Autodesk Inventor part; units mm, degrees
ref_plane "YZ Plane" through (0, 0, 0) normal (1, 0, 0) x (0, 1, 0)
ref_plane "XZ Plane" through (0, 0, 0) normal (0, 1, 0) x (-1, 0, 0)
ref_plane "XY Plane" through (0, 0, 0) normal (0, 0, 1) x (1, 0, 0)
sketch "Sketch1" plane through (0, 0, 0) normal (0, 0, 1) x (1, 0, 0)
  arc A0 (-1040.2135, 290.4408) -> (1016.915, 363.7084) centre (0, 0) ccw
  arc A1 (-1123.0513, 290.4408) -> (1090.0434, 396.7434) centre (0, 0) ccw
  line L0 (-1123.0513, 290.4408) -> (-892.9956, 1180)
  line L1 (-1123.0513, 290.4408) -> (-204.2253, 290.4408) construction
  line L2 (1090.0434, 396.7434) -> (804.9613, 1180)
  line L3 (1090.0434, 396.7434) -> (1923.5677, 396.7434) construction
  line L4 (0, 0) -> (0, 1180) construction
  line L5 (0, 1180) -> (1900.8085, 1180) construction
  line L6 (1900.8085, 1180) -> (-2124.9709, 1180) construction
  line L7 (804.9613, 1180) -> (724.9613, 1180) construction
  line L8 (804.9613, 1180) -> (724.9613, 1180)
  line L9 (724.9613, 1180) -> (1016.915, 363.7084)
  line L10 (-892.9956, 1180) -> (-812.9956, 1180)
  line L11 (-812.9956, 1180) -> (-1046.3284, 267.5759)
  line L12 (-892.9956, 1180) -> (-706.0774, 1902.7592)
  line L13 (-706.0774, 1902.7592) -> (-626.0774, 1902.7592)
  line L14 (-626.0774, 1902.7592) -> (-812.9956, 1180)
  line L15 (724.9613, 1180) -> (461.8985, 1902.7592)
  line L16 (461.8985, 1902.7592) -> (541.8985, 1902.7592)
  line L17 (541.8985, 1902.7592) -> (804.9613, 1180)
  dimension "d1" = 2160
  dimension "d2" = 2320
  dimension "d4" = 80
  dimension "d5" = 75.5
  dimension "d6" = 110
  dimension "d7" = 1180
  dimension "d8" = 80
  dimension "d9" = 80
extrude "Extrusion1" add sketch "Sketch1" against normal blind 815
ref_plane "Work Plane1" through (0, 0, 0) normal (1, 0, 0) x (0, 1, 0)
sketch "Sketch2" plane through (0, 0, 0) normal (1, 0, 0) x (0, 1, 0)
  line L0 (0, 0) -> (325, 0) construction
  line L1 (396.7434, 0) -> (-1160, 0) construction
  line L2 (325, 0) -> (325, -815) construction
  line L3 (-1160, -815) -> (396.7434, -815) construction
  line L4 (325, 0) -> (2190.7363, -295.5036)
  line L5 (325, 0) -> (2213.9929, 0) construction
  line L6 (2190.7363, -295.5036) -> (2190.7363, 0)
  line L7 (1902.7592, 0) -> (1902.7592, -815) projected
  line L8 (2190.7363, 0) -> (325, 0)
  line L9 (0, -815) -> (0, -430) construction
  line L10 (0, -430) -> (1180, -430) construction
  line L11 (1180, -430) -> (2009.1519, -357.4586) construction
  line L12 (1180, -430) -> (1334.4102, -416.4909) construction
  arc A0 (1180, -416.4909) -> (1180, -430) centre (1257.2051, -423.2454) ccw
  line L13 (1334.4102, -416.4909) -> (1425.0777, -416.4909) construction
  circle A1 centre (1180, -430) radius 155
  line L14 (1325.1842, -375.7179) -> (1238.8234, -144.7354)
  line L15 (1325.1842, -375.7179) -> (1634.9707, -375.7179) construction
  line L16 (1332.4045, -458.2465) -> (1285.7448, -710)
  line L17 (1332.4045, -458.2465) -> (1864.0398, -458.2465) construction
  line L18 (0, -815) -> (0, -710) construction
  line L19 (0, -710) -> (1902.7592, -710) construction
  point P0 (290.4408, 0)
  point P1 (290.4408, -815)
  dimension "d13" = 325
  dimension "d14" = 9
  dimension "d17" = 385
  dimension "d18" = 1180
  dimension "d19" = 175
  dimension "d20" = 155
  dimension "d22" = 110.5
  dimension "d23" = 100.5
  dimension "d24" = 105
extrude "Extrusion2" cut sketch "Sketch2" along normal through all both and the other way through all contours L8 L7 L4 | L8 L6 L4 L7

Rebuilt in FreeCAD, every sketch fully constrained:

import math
import FreeCAD as App
import Part
import Sketcher

V = App.Vector
Q = App.Units.Quantity


def add_polygon(sketch, points):
    """Adds a closed chain of lines whose ends are joined by coincident constraints."""
    first, n = sketch.GeometryCount, len(points)
    for a, b in zip(points, points[1:] + points[:1]):
        sketch.addGeometry(Part.LineSegment(App.Vector(*a, 0), App.Vector(*b, 0)), False)
    for i in range(n):
        sketch.addConstraint(Sketcher.Constraint("Coincident", first + i, 2, first + (i + 1) % n, 1))

doc = App.newDocument("Part")
body = doc.addObject("PartDesign::Body", "Body")

sketch1 = body.newObject("Sketcher::SketchObject", "Sketch")
sketch1.AttachmentSupport = (doc.getObject("XY_Plane"), [""])
sketch1.MapMode = "FlatFace"
sketch1.addGeometry(Part.ArcOfCircle(Part.Circle(V(0, 0, 0), V(0, 0, 1), 1079.999993), math.radians(165.655268), math.radians(379.680027)), False)
sketch1.addGeometry(Part.LineSegment(V(-1046.3284, 267.5759, 0), V(-812.9956, 1180, 0)), False)
sketch1.addGeometry(Part.LineSegment(V(-812.9956, 1180, 0), V(-626.0774, 1902.7592, 0)), False)
sketch1.addGeometry(Part.LineSegment(V(-626.0774, 1902.7592, 0), V(-706.0774, 1902.7592, 0)), False)
sketch1.addGeometry(Part.LineSegment(V(-706.0774, 1902.7592, 0), V(-892.9956, 1180, 0)), False)
sketch1.addGeometry(Part.LineSegment(V(-892.9956, 1180, 0), V(-1123.0513, 290.4408, 0)), False)
sketch1.addGeometry(Part.ArcOfCircle(Part.Circle(V(0, 0, 0), V(0, 0, 1), 1160.000035), math.radians(165.500001), math.radians(380.000002)), False)
sketch1.addGeometry(Part.LineSegment(V(1090.0434, 396.7434, 0), V(804.9613, 1180, 0)), False)
sketch1.addGeometry(Part.LineSegment(V(804.9613, 1180, 0), V(541.8985, 1902.7592, 0)), False)
sketch1.addGeometry(Part.LineSegment(V(541.8985, 1902.7592, 0), V(461.8985, 1902.7592, 0)), False)
sketch1.addGeometry(Part.LineSegment(V(461.8985, 1902.7592, 0), V(724.9613, 1180, 0)), False)
sketch1.addGeometry(Part.LineSegment(V(724.9613, 1180, 0), V(1016.915, 363.7084, 0)), False)
sketch1.addConstraint(Sketcher.Constraint("Coincident", 0, 1, 1, 1))
sketch1.addConstraint(Sketcher.Constraint("Coincident", 1, 2, 2, 1))
sketch1.addConstraint(Sketcher.Constraint("Coincident", 2, 2, 3, 1))
sketch1.addConstraint(Sketcher.Constraint("Coincident", 3, 2, 4, 1))
sketch1.addConstraint(Sketcher.Constraint("Coincident", 4, 2, 5, 1))
sketch1.addConstraint(Sketcher.Constraint("Coincident", 5, 2, 6, 1))
sketch1.addConstraint(Sketcher.Constraint("Coincident", 6, 2, 7, 1))
sketch1.addConstraint(Sketcher.Constraint("Coincident", 7, 2, 8, 1))
sketch1.addConstraint(Sketcher.Constraint("Coincident", 8, 2, 9, 1))
sketch1.addConstraint(Sketcher.Constraint("Coincident", 9, 2, 10, 1))
sketch1.addConstraint(Sketcher.Constraint("Coincident", 10, 2, 11, 1))
sketch1.addConstraint(Sketcher.Constraint("Coincident", 11, 2, 0, 2))
sketch1.addConstraint(Sketcher.Constraint("Horizontal", 3))
sketch1.addConstraint(Sketcher.Constraint("Horizontal", 9))
sketch1.addConstraint(Sketcher.Constraint("Coincident", 0, 3, -1, 1))
sketch1.addConstraint(Sketcher.Constraint("Coincident", 6, 3, -1, 1))
sketch1.addConstraint(Sketcher.Constraint("Parallel", 2, 4))
sketch1.addConstraint(Sketcher.Constraint("Parallel", 4, 5))
sketch1.addConstraint(Sketcher.Constraint("Parallel", 7, 8))
sketch1.addConstraint(Sketcher.Constraint("Parallel", 8, 10))
sketch1.addConstraint(Sketcher.Constraint("Horizontal", 1, 2, 4, 2))
sketch1.addConstraint(Sketcher.Constraint("Horizontal", 4, 2, 7, 2))
sketch1.addConstraint(Sketcher.Constraint("Horizontal", 3, 2, 8, 2))
sketch1.addConstraint(Sketcher.Constraint("Horizontal", 7, 2, 10, 2))
sketch1.addConstraint(Sketcher.Constraint("Equal", 3, 9))
sketch1.addConstraint(Sketcher.Constraint("Radius", 0, Q("1080 mm")))
sketch1.addConstraint(Sketcher.Constraint("Radius", 6, Q("1160 mm")))
sketch1.addConstraint(Sketcher.Constraint("DistanceX", 3, 2, 3, 1, Q("80 mm")))
sketch1.addConstraint(Sketcher.Constraint("Angle", 7, Q("110 deg")))
sketch1.addConstraint(Sketcher.Constraint("DistanceY", -1, 1, 1, 2, Q("1180 mm")))
sketch1.addConstraint(Sketcher.Constraint("Angle", 2, Q("75.5 deg")))
sketch1.addConstraint(Sketcher.Constraint("Distance", 5, Q("918.826 mm")))
sketch1.addConstraint(Sketcher.Constraint("DistanceX", -1, 1, 11, 2, Q("1016.915 mm")))
sketch1.addConstraint(Sketcher.Constraint("DistanceX", 2, 2, 8, 2, Q("1167.976 mm")))
sketch1.addConstraint(Sketcher.Constraint("Distance", 1, Q("941.7866 mm")))
sketch1.addConstraint(Sketcher.Constraint("Distance", 7, Q("833.5243 mm")))
pad1 = body.newObject("PartDesign::Pad", "Pad")
pad1.Profile = sketch1
pad1.Length = 815
pad1.Reversed = True

sketch2 = body.newObject("Sketcher::SketchObject", "Sketch001")
sketch2.AttachmentSupport = (doc.getObject("YZ_Plane"), [""])
sketch2.MapMode = "FlatFace"
add_polygon(sketch2, [(325, 0), (2190.7363, -295.5036), (2190.7363, 0)])
sketch2.addConstraint(Sketcher.Constraint("Vertical", 1))
sketch2.addConstraint(Sketcher.Constraint("Horizontal", 2))
sketch2.addConstraint(Sketcher.Constraint("PointOnObject", 1, 2, -1))
sketch2.addConstraint(Sketcher.Constraint("Angle", 0, Q("-9 deg")))
sketch2.addConstraint(Sketcher.Constraint("DistanceX", -1, 1, 2, 2, Q("325 mm")))
sketch2.addConstraint(Sketcher.Constraint("Distance", 0, Q("1888.993 mm")))
pocket1 = body.newObject("PartDesign::Pocket", "Pocket")
pocket1.Profile = sketch2
pocket1.Type = "ThroughAll"
pocket1.Midplane = True

doc.recompute()
